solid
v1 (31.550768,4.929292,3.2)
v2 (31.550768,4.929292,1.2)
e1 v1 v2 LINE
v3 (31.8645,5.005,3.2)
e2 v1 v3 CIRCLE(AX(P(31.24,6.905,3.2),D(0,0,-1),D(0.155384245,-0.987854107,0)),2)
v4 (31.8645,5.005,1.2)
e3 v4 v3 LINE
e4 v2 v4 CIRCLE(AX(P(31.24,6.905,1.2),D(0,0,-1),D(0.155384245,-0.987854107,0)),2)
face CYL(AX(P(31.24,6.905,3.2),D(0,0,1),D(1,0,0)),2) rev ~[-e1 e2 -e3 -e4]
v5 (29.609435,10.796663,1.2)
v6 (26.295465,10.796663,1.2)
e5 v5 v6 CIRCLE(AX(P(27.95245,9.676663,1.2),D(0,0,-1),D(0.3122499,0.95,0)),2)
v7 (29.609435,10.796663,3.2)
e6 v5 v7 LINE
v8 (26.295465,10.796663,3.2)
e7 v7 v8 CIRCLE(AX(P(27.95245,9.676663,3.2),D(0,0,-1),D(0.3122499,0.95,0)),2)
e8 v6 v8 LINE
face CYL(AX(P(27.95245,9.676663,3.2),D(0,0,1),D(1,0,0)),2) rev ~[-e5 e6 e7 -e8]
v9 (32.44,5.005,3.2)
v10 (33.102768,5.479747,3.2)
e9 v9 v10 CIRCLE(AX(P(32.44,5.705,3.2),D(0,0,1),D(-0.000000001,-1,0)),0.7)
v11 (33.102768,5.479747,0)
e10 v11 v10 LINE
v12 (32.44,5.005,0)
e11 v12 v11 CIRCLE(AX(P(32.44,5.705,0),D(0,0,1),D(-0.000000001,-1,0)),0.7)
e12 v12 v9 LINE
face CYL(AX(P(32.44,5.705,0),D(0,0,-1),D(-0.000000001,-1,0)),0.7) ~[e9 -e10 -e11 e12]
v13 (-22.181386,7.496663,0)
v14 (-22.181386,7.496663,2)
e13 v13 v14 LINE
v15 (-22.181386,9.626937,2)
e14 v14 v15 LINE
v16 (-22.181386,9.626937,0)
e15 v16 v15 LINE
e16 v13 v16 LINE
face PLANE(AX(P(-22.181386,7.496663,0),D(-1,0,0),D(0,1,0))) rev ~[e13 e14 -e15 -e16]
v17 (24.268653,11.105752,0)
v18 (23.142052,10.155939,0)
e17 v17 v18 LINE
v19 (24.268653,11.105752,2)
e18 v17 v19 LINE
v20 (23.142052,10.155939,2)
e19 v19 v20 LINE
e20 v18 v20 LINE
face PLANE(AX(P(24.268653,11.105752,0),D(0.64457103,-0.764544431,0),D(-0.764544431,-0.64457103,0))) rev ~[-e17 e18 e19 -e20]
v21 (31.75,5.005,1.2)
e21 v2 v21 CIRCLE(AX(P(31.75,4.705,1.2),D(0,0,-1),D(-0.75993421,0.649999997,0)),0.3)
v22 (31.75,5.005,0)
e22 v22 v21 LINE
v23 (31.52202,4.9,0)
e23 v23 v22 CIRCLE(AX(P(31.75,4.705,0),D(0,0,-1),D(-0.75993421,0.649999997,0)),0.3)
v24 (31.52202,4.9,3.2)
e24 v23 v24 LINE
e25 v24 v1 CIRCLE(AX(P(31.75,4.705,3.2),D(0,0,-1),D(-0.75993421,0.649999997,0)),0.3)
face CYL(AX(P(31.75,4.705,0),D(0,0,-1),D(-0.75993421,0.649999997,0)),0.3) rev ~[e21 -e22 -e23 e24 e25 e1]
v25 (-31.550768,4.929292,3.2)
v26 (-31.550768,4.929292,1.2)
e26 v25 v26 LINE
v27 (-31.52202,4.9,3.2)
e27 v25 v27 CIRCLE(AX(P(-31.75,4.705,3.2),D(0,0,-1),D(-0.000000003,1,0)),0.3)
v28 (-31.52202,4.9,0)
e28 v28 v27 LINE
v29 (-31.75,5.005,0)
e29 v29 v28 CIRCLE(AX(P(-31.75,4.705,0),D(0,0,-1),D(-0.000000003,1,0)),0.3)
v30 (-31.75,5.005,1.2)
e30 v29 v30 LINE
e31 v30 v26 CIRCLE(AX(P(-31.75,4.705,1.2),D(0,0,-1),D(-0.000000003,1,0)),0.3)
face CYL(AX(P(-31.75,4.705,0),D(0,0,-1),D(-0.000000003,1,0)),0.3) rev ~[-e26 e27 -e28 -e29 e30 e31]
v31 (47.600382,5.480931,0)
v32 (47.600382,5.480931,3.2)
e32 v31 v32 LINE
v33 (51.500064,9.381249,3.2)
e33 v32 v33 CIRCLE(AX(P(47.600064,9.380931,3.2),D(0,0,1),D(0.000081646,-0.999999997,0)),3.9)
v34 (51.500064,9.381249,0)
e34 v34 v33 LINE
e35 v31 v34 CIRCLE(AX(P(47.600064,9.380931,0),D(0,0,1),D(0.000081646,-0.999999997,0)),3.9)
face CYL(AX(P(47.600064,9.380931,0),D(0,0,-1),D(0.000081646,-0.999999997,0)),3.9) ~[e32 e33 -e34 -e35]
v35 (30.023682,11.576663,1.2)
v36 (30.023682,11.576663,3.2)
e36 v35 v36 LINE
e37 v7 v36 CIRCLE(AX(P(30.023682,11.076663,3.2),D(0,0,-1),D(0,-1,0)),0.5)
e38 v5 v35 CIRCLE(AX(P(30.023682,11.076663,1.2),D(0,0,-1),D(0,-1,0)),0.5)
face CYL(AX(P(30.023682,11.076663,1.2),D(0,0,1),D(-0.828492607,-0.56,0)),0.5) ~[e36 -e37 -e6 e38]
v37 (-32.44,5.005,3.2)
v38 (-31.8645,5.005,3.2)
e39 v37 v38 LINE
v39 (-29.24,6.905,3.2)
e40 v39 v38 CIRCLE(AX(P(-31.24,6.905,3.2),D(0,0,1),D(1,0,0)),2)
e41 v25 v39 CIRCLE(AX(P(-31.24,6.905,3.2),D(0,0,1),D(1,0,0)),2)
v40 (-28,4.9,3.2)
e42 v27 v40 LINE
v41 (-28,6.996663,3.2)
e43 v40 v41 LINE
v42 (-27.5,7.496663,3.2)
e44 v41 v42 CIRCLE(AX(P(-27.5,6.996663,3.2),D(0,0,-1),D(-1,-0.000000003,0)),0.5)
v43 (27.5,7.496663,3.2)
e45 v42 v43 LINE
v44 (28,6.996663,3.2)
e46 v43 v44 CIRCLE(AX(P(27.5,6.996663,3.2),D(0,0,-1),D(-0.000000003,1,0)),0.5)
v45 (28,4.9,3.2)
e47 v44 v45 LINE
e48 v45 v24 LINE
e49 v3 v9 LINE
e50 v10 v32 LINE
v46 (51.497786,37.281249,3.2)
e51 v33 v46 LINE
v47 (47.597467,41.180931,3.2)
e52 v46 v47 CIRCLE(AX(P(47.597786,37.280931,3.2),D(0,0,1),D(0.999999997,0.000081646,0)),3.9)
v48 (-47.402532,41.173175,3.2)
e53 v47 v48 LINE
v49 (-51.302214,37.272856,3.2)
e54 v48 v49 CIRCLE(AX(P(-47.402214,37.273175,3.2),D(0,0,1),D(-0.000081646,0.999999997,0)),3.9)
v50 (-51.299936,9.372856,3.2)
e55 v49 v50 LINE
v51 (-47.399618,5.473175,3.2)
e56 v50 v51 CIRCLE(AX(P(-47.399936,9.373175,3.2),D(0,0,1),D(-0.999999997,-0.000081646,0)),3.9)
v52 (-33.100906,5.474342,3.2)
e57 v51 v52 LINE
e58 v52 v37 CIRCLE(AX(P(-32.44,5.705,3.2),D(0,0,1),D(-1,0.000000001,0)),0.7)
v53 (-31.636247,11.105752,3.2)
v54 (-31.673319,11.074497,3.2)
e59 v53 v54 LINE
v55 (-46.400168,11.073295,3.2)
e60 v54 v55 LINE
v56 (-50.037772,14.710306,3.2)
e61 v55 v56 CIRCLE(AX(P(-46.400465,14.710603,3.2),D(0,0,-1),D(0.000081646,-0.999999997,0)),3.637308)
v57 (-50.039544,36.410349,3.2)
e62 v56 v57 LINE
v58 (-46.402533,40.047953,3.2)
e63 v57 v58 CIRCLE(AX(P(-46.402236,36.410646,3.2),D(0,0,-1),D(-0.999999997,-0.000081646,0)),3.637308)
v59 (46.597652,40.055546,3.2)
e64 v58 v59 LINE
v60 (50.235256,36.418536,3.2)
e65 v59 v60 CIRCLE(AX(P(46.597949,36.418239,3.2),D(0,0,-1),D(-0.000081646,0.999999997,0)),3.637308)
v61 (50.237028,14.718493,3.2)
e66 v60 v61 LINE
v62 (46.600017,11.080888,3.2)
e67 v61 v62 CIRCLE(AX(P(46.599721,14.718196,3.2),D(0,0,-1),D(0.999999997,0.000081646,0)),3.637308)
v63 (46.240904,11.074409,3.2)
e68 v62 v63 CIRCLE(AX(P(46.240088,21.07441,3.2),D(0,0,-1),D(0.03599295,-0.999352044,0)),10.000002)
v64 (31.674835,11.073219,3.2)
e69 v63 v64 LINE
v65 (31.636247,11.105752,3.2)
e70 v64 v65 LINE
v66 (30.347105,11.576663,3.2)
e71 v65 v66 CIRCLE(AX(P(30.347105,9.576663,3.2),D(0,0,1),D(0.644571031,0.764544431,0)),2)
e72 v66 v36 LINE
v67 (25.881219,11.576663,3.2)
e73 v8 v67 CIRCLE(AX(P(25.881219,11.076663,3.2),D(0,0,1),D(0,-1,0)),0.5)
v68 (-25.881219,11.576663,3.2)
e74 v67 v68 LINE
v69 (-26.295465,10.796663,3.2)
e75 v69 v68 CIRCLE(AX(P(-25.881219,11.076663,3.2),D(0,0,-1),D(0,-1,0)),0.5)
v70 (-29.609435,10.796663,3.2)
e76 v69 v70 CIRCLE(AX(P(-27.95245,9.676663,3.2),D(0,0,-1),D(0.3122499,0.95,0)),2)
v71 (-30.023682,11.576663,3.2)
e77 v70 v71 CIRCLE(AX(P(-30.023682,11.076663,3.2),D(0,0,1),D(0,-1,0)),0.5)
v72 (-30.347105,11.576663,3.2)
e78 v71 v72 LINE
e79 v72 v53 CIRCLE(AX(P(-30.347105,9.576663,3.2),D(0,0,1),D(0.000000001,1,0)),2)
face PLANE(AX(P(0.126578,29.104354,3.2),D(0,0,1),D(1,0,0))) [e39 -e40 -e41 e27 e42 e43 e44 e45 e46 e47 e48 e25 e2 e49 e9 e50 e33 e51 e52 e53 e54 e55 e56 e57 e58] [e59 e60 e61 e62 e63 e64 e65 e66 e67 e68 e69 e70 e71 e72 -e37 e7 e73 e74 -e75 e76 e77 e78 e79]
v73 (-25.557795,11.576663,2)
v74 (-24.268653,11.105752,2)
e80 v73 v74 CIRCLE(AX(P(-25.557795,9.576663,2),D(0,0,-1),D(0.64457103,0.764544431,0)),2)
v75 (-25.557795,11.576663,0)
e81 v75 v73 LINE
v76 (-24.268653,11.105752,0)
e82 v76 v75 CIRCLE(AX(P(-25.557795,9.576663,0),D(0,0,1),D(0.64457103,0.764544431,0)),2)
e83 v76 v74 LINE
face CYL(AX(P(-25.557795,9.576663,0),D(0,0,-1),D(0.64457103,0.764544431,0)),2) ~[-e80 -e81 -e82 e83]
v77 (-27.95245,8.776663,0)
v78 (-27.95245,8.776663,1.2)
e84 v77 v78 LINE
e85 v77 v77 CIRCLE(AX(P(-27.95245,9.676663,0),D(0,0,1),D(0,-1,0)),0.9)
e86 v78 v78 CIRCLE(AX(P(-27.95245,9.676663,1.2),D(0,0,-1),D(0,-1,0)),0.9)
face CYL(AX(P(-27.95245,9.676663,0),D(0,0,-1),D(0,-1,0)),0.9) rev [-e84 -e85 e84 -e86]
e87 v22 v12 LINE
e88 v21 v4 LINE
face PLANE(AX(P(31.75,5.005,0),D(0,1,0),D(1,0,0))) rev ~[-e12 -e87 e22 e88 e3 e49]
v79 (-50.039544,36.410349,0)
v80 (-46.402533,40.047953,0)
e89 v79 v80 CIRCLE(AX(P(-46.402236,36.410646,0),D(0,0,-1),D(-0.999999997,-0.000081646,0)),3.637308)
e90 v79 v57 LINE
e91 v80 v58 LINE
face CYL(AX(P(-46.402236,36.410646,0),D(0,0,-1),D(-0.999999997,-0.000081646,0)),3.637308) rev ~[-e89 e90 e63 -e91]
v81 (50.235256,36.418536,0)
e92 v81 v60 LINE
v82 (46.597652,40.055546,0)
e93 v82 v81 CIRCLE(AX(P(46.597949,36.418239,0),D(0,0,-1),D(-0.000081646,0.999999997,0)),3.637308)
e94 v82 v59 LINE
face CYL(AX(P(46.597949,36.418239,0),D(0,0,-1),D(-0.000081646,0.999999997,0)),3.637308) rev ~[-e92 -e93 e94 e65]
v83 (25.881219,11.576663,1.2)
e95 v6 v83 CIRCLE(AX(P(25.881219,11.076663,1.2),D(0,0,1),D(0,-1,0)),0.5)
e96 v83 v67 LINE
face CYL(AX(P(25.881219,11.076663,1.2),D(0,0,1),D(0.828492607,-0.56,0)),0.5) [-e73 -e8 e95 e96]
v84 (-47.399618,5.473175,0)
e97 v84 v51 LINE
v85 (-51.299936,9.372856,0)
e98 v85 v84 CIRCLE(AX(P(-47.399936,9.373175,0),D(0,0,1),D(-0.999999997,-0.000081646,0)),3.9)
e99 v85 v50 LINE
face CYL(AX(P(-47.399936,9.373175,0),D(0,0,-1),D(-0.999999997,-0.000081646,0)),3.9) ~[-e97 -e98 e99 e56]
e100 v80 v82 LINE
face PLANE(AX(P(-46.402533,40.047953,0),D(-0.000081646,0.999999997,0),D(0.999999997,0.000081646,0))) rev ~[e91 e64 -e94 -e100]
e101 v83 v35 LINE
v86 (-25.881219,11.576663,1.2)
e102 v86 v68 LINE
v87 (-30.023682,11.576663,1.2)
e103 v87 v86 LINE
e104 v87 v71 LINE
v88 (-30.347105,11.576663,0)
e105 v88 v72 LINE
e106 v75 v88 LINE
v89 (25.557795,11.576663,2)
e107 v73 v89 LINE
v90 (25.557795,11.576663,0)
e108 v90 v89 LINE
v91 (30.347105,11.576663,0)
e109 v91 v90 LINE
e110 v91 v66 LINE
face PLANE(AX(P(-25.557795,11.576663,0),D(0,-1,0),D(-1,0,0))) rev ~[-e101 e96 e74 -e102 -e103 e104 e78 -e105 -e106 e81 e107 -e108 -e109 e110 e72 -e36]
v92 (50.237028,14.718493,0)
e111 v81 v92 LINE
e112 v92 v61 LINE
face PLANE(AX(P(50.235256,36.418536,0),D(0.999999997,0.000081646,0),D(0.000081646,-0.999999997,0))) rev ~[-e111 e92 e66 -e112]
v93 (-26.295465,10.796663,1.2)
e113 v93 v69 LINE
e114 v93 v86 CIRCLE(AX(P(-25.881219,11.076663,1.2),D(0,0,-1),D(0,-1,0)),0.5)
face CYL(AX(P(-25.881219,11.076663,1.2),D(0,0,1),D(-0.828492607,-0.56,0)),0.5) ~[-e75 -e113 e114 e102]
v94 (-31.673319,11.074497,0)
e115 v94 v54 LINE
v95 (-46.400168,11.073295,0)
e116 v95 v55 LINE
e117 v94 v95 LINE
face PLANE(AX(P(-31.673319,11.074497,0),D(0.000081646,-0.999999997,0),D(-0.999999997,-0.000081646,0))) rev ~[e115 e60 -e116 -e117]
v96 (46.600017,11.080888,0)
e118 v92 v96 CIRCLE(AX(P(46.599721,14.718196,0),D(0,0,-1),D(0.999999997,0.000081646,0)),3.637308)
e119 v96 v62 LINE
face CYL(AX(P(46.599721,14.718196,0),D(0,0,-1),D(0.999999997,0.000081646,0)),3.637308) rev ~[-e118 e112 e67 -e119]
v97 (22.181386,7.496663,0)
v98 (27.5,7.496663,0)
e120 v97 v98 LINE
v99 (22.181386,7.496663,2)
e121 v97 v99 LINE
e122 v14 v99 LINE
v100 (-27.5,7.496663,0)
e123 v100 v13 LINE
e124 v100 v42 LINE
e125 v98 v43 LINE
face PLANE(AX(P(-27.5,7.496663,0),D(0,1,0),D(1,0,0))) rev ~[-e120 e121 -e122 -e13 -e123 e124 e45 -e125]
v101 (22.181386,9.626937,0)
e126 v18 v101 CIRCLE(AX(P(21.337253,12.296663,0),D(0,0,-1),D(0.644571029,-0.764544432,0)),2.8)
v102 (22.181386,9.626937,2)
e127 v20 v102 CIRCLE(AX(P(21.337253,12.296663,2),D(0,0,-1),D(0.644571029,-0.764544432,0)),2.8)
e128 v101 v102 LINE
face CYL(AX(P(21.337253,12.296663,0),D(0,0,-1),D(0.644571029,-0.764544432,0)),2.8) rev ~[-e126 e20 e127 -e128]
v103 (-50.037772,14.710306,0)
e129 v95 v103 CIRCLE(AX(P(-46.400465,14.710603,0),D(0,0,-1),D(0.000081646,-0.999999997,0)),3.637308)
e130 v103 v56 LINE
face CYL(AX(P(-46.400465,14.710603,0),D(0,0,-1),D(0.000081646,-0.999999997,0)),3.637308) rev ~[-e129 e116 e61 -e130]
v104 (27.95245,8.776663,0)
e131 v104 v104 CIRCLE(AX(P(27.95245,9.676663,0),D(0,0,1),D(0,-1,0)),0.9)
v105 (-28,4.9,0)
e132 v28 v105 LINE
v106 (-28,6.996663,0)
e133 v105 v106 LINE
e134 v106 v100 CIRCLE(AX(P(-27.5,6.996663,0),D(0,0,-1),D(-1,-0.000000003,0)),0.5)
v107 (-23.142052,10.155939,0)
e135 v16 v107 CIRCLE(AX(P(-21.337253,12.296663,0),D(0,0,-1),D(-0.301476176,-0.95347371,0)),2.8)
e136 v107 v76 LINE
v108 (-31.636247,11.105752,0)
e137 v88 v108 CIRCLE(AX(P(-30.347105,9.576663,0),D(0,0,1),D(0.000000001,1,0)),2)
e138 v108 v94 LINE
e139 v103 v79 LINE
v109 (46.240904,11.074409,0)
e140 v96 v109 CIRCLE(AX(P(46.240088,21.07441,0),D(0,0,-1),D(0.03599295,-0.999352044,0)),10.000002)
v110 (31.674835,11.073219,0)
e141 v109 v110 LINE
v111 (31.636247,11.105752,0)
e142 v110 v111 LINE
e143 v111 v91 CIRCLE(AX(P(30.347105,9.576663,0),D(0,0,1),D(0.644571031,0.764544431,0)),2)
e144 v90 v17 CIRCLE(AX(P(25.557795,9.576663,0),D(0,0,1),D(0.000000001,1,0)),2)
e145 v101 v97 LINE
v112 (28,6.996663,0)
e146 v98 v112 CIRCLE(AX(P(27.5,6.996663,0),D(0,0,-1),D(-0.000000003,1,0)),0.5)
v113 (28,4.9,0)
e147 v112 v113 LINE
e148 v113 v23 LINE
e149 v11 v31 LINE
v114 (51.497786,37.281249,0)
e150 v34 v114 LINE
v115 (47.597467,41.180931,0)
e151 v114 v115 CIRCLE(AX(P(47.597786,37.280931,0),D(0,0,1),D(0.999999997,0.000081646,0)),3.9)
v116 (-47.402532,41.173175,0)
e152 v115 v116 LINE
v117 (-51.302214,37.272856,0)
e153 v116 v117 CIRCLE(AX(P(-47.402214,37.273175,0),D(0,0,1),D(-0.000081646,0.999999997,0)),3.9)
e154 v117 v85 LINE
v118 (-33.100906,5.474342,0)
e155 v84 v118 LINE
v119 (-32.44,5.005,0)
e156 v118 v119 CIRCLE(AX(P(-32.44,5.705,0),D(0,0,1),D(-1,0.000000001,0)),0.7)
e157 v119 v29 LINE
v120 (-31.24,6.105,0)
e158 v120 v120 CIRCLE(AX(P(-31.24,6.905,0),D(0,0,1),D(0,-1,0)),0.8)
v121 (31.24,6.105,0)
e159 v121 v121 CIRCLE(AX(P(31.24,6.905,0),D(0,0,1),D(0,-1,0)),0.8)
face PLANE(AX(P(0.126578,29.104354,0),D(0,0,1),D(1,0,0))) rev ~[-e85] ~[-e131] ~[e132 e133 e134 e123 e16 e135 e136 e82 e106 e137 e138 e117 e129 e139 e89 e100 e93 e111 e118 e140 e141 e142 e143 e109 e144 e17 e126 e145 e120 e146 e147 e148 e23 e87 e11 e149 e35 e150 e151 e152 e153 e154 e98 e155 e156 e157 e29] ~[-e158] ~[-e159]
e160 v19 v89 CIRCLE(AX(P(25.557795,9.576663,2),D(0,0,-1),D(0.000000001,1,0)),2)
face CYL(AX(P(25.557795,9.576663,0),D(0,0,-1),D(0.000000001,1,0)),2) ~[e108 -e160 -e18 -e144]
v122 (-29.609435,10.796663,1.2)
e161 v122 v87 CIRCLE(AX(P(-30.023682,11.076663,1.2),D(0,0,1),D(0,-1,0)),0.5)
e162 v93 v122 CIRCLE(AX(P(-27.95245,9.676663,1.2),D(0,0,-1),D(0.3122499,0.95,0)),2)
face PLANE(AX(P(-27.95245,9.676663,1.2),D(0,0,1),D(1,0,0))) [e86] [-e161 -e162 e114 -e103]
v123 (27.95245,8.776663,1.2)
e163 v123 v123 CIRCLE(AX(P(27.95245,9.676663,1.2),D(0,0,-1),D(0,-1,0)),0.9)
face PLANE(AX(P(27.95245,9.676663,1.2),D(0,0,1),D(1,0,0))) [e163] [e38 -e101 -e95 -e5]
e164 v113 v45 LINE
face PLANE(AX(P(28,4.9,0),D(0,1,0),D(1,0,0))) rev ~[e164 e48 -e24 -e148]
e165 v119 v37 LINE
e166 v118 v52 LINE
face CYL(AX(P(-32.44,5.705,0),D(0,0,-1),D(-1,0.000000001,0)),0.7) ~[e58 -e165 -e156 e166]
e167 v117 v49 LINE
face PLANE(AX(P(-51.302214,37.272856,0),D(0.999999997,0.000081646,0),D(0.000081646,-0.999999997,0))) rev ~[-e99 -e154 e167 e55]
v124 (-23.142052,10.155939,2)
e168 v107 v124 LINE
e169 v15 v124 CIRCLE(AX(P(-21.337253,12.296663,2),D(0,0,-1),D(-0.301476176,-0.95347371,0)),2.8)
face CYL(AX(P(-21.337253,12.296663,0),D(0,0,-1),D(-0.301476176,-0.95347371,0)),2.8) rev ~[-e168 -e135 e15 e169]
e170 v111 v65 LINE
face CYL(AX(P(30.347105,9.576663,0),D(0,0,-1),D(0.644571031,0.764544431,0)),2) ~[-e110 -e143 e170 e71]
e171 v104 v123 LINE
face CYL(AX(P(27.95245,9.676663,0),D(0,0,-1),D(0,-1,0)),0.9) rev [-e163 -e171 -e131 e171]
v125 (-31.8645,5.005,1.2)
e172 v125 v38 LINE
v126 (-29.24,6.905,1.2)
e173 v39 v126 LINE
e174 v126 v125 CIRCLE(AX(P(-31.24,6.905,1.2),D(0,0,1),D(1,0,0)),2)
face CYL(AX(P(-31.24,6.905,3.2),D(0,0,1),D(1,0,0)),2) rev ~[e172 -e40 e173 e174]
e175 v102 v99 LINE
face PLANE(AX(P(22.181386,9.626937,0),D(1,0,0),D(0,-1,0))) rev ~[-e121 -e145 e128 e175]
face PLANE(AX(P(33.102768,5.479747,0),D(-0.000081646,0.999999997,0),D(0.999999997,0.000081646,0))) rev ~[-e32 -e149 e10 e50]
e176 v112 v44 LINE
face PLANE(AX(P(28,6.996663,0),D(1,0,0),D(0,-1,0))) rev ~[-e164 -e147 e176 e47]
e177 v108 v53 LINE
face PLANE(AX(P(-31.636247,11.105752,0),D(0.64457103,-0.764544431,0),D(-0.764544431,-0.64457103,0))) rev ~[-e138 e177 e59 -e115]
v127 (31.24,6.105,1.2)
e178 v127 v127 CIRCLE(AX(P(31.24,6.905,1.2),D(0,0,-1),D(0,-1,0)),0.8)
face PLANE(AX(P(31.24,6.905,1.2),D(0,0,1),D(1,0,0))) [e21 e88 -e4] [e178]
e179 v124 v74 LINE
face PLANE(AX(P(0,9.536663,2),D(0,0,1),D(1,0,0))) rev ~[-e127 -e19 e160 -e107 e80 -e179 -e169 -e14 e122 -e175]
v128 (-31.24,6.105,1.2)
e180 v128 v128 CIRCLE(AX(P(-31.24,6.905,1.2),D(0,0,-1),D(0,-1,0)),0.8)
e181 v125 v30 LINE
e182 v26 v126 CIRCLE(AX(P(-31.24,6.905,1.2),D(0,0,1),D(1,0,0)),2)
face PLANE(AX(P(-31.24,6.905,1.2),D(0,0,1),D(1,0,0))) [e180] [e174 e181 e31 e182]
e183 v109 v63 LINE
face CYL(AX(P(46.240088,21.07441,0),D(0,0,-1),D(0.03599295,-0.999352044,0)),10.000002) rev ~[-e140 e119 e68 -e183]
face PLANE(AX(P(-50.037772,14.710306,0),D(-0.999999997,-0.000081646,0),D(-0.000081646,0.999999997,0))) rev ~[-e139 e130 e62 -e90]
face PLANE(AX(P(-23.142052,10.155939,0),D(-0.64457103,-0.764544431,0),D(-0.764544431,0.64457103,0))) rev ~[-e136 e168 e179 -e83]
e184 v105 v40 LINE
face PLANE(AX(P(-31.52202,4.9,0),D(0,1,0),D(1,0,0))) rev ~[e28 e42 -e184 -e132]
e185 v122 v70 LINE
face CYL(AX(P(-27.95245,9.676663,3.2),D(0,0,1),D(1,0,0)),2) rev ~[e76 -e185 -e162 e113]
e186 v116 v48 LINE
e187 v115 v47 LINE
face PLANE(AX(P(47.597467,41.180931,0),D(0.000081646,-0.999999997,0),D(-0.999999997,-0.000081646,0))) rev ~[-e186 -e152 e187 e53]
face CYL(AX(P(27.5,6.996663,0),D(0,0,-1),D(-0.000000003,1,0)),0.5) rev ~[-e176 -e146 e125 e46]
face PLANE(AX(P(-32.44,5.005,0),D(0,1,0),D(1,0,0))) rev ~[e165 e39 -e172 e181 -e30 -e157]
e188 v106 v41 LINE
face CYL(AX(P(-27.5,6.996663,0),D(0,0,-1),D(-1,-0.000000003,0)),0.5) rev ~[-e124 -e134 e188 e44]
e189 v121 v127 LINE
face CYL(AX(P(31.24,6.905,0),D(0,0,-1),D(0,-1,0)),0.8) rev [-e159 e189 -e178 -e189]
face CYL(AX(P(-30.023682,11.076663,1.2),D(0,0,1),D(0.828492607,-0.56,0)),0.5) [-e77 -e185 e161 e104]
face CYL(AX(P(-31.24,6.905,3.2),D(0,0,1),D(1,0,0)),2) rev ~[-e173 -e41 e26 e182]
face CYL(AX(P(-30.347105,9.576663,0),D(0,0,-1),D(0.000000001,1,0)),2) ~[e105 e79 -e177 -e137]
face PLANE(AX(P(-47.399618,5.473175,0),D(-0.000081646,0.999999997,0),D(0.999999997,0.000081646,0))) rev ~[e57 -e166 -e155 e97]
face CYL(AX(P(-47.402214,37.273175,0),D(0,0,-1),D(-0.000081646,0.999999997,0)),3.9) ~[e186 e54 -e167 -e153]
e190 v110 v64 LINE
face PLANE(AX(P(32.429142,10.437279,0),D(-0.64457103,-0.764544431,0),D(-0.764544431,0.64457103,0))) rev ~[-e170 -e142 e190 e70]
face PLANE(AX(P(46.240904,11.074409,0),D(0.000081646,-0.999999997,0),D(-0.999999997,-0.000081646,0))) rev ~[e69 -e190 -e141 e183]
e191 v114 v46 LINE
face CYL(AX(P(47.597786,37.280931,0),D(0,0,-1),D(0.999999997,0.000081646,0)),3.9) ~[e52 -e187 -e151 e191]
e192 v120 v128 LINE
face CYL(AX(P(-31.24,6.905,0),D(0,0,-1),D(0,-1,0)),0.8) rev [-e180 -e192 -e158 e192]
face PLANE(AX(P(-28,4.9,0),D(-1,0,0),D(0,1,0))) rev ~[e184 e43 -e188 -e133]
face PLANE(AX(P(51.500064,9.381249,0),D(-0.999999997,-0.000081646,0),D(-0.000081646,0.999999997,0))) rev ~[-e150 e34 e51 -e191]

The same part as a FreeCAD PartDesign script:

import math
import FreeCAD as App
import Part
import Sketcher


def edges_at(feature, points):
    """Names of the edges that pass closest to the given points."""
    edges = feature.Shape.Edges
    near = lambda p: min(range(len(edges)), key=lambda i: edges[i].distToShape(Part.Vertex(*p))[0])
    return sorted({f"Edge{near(p) + 1}" for p in points})


def add_polygon(sketch, points):
    """Adds a closed chain of lines whose ends are joined by coincident constraints."""
    first, n = sketch.GeometryCount, len(points)
    for a, b in zip(points, points[1:] + points[:1]):
        sketch.addGeometry(Part.LineSegment(App.Vector(*a, 0), App.Vector(*b, 0)), False)
    for i in range(n):
        sketch.addConstraint(Sketcher.Constraint("Coincident", first + i, 2, first + (i + 1) % n, 1))

doc = App.newDocument("Part")
params = doc.addObject("Spreadsheet::Sheet", "Params")
for row, (alias, value) in enumerate([
    ("sketch1_radius", "2 mm"),
    ("sketch1_diameter", "1.6 mm"),
    ("sketch1_diameter2", "1.8 mm"),
    ("sketch1_radius2", "0.3 mm"),
    ("sketch1_radius3", "0.5 mm"),
    ("pad1_length", "3.2 mm"),
    ("sketch2_radius", "2 mm"),
    ("sketch2_diameter", "1.6 mm"),
    ("sketch2_diameter2", "1.8 mm"),
    ("sketch2_radius2", "0.3 mm"),
    ("sketch2_radius3", "0.7 mm"),
    ("pad2_length", "3.2 mm"),
    ("sketch3_height", "4.08 mm"),
    ("pad3_length", "1.2 mm"),
    ("sketch4_radius", "2 mm"),
    ("sketch4_radius2", "2 mm"),
    ("sketch4_radius3", "10.000002 mm"),
    ("sketch4_radius4", "0.7 mm"),
    ("sketch4_radius5", "3.9 mm"),
    ("pad4_length", "3.2 mm"),
    ("sketch5_diameter", "4 mm"),
    ("pocket1_length", "2 mm"),
    ("fillet_radius", "0.5 mm"),
], start=1):
    params.set(f"A{row}", alias)
    params.set(f"B{row}", "=" + value)
    params.setAlias(f"B{row}", alias)

body = doc.addObject("PartDesign::Body", "Body")

# Sketch on XY plane
sketch1 = doc.addObject("Sketcher::SketchObject", "Sketch")
body.addObject(sketch1)
sketch1.AttachmentSupport = (doc.XY_Plane, [""])
sketch1.MapMode = "FlatFace"
sketch1.addGeometry(Part.LineSegment(App.Vector(-32.44, 5, 0), App.Vector(-31.75, 5, 0)), False)
sketch1.addGeometry(Part.ArcOfCircle(Part.Circle(App.Vector(-31.75, 4.71, 0), App.Vector(0, 0, 1), 0.3), math.radians(41), math.radians(90)), False)
sketch1.addGeometry(Part.LineSegment(App.Vector(-31.52, 4.9, 0), App.Vector(-28, 4.9, 0)), False)
sketch1.addGeometry(Part.LineSegment(App.Vector(-28, 4.9, 0), App.Vector(-28, 7, 0)), False)
sketch1.addGeometry(Part.ArcOfCircle(Part.Circle(App.Vector(-27.5, 7, 0), App.Vector(0, 0, 1), 0.5), math.radians(90), math.radians(180)), False)
sketch1.addGeometry(Part.LineSegment(App.Vector(-27.5, 7.5, 0), App.Vector(-22.18, 7.5, 0)), False)
sketch1.addGeometry(Part.LineSegment(App.Vector(-22.18, 7.5, 0), App.Vector(-22.18, 9.63, 0)), False)
sketch1.addGeometry(Part.ArcOfCircle(Part.Circle(App.Vector(-21.34, 12.3, 0), App.Vector(0, 0, 1), 2.8), math.radians(-130), math.radians(-108)), False)
sketch1.addGeometry(Part.LineSegment(App.Vector(-23.14, 10.16, 0), App.Vector(-24.27, 11.11, 0)), False)
sketch1.addGeometry(Part.ArcOfCircle(Part.Circle(App.Vector(-25.56, 9.58, 0), App.Vector(0, 0, 1), 2), math.radians(50), math.radians(90)), False)
sketch1.addGeometry(Part.LineSegment(App.Vector(-25.56, 11.58, 0), App.Vector(-30.35, 11.58, 0)), False)
sketch1.addGeometry(Part.ArcOfCircle(Part.Circle(App.Vector(-30.35, 9.58, 0), App.Vector(0, 0, 1), 2), math.radians(90), math.radians(130)), False)
sketch1.addGeometry(Part.LineSegment(App.Vector(-31.64, 11.11, 0), App.Vector(-32.43, 10.44, 0)), False)
sketch1.addGeometry(Part.ArcOfCircle(Part.Circle(App.Vector(-31.14, 8.91, 0), App.Vector(0, 0, 1), 2), math.radians(130), math.radians(180)), False)
sketch1.addGeometry(Part.LineSegment(App.Vector(-33.14, 8.91, 0), App.Vector(-33.14, 5.71, 0)), False)
sketch1.addGeometry(Part.ArcOfCircle(Part.Circle(App.Vector(-32.44, 5.7, 0), App.Vector(0, 0, 1), 0.7), math.radians(180), math.radians(270)), False)
sketch1.addGeometry(Part.Circle(App.Vector(-31.24, 6.91, 0), App.Vector(0, 0, 1), 0.8), False)
sketch1.addGeometry(Part.Circle(App.Vector(-27.95, 9.68, 0), App.Vector(0, 0, 1), 0.9), False)
sketch1.addConstraint(Sketcher.Constraint("Tangent", 0, 2, 1, 2))
sketch1.addConstraint(Sketcher.Constraint("Coincident", 1, 1, 2, 1))
sketch1.addConstraint(Sketcher.Constraint("Coincident", 2, 2, 3, 1))
sketch1.addConstraint(Sketcher.Constraint("Tangent", 3, 2, 4, 2))
sketch1.addConstraint(Sketcher.Constraint("Tangent", 4, 1, 5, 1))
sketch1.addConstraint(Sketcher.Constraint("Coincident", 5, 2, 6, 1))
sketch1.addConstraint(Sketcher.Constraint("Coincident", 6, 2, 7, 2))
sketch1.addConstraint(Sketcher.Constraint("Tangent", 7, 1, 8, 1))
sketch1.addConstraint(Sketcher.Constraint("Tangent", 8, 2, 9, 1))
sketch1.addConstraint(Sketcher.Constraint("Tangent", 9, 2, 10, 1))
sketch1.addConstraint(Sketcher.Constraint("Tangent", 10, 2, 11, 1))
sketch1.addConstraint(Sketcher.Constraint("Tangent", 11, 2, 12, 1))
sketch1.addConstraint(Sketcher.Constraint("Tangent", 12, 2, 13, 1))
sketch1.addConstraint(Sketcher.Constraint("Tangent", 13, 2, 14, 1))
sketch1.addConstraint(Sketcher.Constraint("Tangent", 14, 2, 15, 1))
sketch1.addConstraint(Sketcher.Constraint("Tangent", 15, 2, 0, 1))
sketch1.addConstraint(Sketcher.Constraint("Horizontal", 0))
sketch1.addConstraint(Sketcher.Constraint("Horizontal", 2))
sketch1.addConstraint(Sketcher.Constraint("Vertical", 3))
sketch1.addConstraint(Sketcher.Constraint("Horizontal", 5))
sketch1.addConstraint(Sketcher.Constraint("Vertical", 6))
sketch1.addConstraint(Sketcher.Constraint("Horizontal", 10))
sketch1.addConstraint(Sketcher.Constraint("Vertical", 14))
sketch1.addConstraint(Sketcher.Constraint("Equal", 9, 11))
sketch1.addConstraint(Sketcher.Constraint("Equal", 11, 13))
sketch1.addConstraint(Sketcher.Constraint("Horizontal", 8, 2, 11, 2))
sketch1.addConstraint(Sketcher.Constraint("Radius", 9, 2.0))
sketch1.addConstraint(Sketcher.Constraint("Diameter", 16, 1.6))
sketch1.addConstraint(Sketcher.Constraint("Diameter", 17, 1.8))
sketch1.addConstraint(Sketcher.Constraint("Radius", 1, 0.3))
sketch1.addConstraint(Sketcher.Constraint("Radius", 4, 0.5))
sketch1.addConstraint(Sketcher.Constraint("Radius", 7, 2.8))
sketch1.addConstraint(Sketcher.Constraint("Radius", 15, 0.7))
sketch1.addConstraint(Sketcher.Constraint("DistanceX", 2, 2, -1, 1, 28.0))
sketch1.addConstraint(Sketcher.Constraint("DistanceX", 0, 1, 0, 2, 0.69))
sketch1.addConstraint(Sketcher.Constraint("DistanceY", -1, 1, 1, 1, 4.9))
sketch1.addConstraint(Sketcher.Constraint("DistanceY", 4, 3, 7, 3, 5.3))
sketch1.addConstraint(Sketcher.Constraint("DistanceX", 15, 3, 16, 3, 1.2))
sketch1.addConstraint(Sketcher.Constraint("DistanceY", 15, 3, 16, 3, 1.2))
sketch1.addConstraint(Sketcher.Constraint("DistanceY", 9, 3, 17, 3, 0.1))
sketch1.addConstraint(Sketcher.Constraint("DistanceX", 1, 3, -1, 1, 31.75))
sketch1.addConstraint(Sketcher.Constraint("DistanceY", 4, 3, 9, 3, 2.58))
sketch1.addConstraint(Sketcher.Constraint("DistanceY", -1, 1, 1, 3, 4.705))
sketch1.addConstraint(Sketcher.Constraint("DistanceY", 6, 2, 7, 1, 0.529002))
sketch1.addConstraint(Sketcher.Constraint("DistanceX", 10, 2, 10, 1, 4.78931))
sketch1.addConstraint(Sketcher.Constraint("DistanceY", 14, 2, 14, 1, 3.20319))
sketch1.addConstraint(Sketcher.Constraint("DistanceX", 7, 1, 7, 3, 1.804799))
sketch1.addConstraint(Sketcher.Constraint("DistanceX", 17, 3, 7, 1, 4.810398))
sketch1.addConstraint(Sketcher.Constraint("Distance", 12, 1.037082))
sketch1.setExpression("Constraints[26]", "Params.sketch1_radius")
sketch1.setExpression("Constraints[27]", "Params.sketch1_diameter")
sketch1.setExpression("Constraints[28]", "Params.sketch1_diameter2")
sketch1.setExpression("Constraints[29]", "Params.sketch1_radius2")
sketch1.setExpression("Constraints[30]", "Params.sketch1_radius3")
pad1 = doc.addObject("PartDesign::Pad", "Pad")
body.addObject(pad1)
pad1.Profile = sketch1
pad1.setExpression("Length", "Params.pad1_length")
body2 = doc.addObject("PartDesign::Body", "Body001")

# Sketch on XY plane
sketch2 = doc.addObject("Sketcher::SketchObject", "Sketch001")
body2.addObject(sketch2)
sketch2.AttachmentSupport = (doc.getObject("XY_Plane001"), [""])
sketch2.MapMode = "FlatFace"
sketch2.addGeometry(Part.LineSegment(App.Vector(28, 7, 0), App.Vector(28, 4.9, 0)), False)
sketch2.addGeometry(Part.LineSegment(App.Vector(28, 4.9, 0), App.Vector(31.52, 4.9, 0)), False)
sketch2.addGeometry(Part.ArcOfCircle(Part.Circle(App.Vector(31.75, 4.71, 0), App.Vector(0, 0, 1), 0.3), math.radians(90), math.radians(139)), False)
sketch2.addGeometry(Part.LineSegment(App.Vector(31.75, 5, 0), App.Vector(32.44, 5, 0)), False)
sketch2.addGeometry(Part.ArcOfCircle(Part.Circle(App.Vector(32.44, 5.7, 0), App.Vector(0, 0, 1), 0.7), math.radians(-90), math.radians(0)), False)
sketch2.addGeometry(Part.LineSegment(App.Vector(33.14, 5.71, 0), App.Vector(33.14, 8.91, 0)), False)
sketch2.addGeometry(Part.ArcOfCircle(Part.Circle(App.Vector(31.14, 8.91, 0), App.Vector(0, 0, 1), 2), math.radians(0), math.radians(50)), False)
sketch2.addGeometry(Part.LineSegment(App.Vector(32.43, 10.44, 0), App.Vector(31.64, 11.11, 0)), False)
sketch2.addGeometry(Part.ArcOfCircle(Part.Circle(App.Vector(30.35, 9.58, 0), App.Vector(0, 0, 1), 2), math.radians(50), math.radians(90)), False)
sketch2.addGeometry(Part.LineSegment(App.Vector(30.35, 11.58, 0), App.Vector(25.56, 11.58, 0)), False)
sketch2.addGeometry(Part.ArcOfCircle(Part.Circle(App.Vector(25.56, 9.58, 0), App.Vector(0, 0, 1), 2), math.radians(90), math.radians(130)), False)
sketch2.addGeometry(Part.LineSegment(App.Vector(24.27, 11.11, 0), App.Vector(23.14, 10.16, 0)), False)
sketch2.addGeometry(Part.ArcOfCircle(Part.Circle(App.Vector(21.34, 12.3, 0), App.Vector(0, 0, 1), 2.8), math.radians(-72), math.radians(-50)), False)
sketch2.addGeometry(Part.LineSegment(App.Vector(22.18, 9.63, 0), App.Vector(22.18, 7.5, 0)), False)
sketch2.addGeometry(Part.LineSegment(App.Vector(22.18, 7.5, 0), App.Vector(27.5, 7.5, 0)), False)
sketch2.addGeometry(Part.ArcOfCircle(Part.Circle(App.Vector(27.5, 7, 0), App.Vector(0, 0, 1), 0.5), math.radians(0), math.radians(90)), False)
sketch2.addGeometry(Part.Circle(App.Vector(31.24, 6.91, 0), App.Vector(0, 0, 1), 0.8), False)
sketch2.addGeometry(Part.Circle(App.Vector(27.95, 9.68, 0), App.Vector(0, 0, 1), 0.9), False)
sketch2.addConstraint(Sketcher.Constraint("Coincident", 0, 2, 1, 1))
sketch2.addConstraint(Sketcher.Constraint("Coincident", 1, 2, 2, 2))
sketch2.addConstraint(Sketcher.Constraint("Tangent", 2, 1, 3, 1))
sketch2.addConstraint(Sketcher.Constraint("Tangent", 3, 2, 4, 1))
sketch2.addConstraint(Sketcher.Constraint("Tangent", 4, 2, 5, 1))
sketch2.addConstraint(Sketcher.Constraint("Tangent", 5, 2, 6, 1))
sketch2.addConstraint(Sketcher.Constraint("Tangent", 6, 2, 7, 1))
sketch2.addConstraint(Sketcher.Constraint("Tangent", 7, 2, 8, 1))
sketch2.addConstraint(Sketcher.Constraint("Tangent", 8, 2, 9, 1))
sketch2.addConstraint(Sketcher.Constraint("Tangent", 9, 2, 10, 1))
sketch2.addConstraint(Sketcher.Constraint("Tangent", 10, 2, 11, 1))
sketch2.addConstraint(Sketcher.Constraint("Tangent", 11, 2, 12, 2))
sketch2.addConstraint(Sketcher.Constraint("Coincident", 12, 1, 13, 1))
sketch2.addConstraint(Sketcher.Constraint("Coincident", 13, 2, 14, 1))
sketch2.addConstraint(Sketcher.Constraint("Tangent", 14, 2, 15, 2))
sketch2.addConstraint(Sketcher.Constraint("Tangent", 15, 1, 0, 1))
sketch2.addConstraint(Sketcher.Constraint("Vertical", 0))
sketch2.addConstraint(Sketcher.Constraint("Horizontal", 1))
sketch2.addConstraint(Sketcher.Constraint("Horizontal", 3))
sketch2.addConstraint(Sketcher.Constraint("Vertical", 5))
sketch2.addConstraint(Sketcher.Constraint("Horizontal", 9))
sketch2.addConstraint(Sketcher.Constraint("Vertical", 13))
sketch2.addConstraint(Sketcher.Constraint("Horizontal", 14))
sketch2.addConstraint(Sketcher.Constraint("Equal", 6, 8))
sketch2.addConstraint(Sketcher.Constraint("Equal", 8, 10))
sketch2.addConstraint(Sketcher.Constraint("Horizontal", 7, 2, 10, 2))
sketch2.addConstraint(Sketcher.Constraint("Radius", 6, 2.0))
sketch2.addConstraint(Sketcher.Constraint("Diameter", 16, 1.6))
sketch2.addConstraint(Sketcher.Constraint("Diameter", 17, 1.8))
sketch2.addConstraint(Sketcher.Constraint("Radius", 2, 0.3))
sketch2.addConstraint(Sketcher.Constraint("Radius", 4, 0.7))
sketch2.addConstraint(Sketcher.Constraint("Radius", 12, 2.8))
sketch2.addConstraint(Sketcher.Constraint("Radius", 15, 0.5))
sketch2.addConstraint(Sketcher.Constraint("DistanceX", -1, 1, 0, 2, 28.0))
sketch2.addConstraint(Sketcher.Constraint("DistanceX", 3, 1, 3, 2, 0.69))
sketch2.addConstraint(Sketcher.Constraint("DistanceY", -1, 1, 0, 2, 4.9))
sketch2.addConstraint(Sketcher.Constraint("DistanceX", 16, 3, 4, 3, 1.2))
sketch2.addConstraint(Sketcher.Constraint("DistanceY", 4, 3, 16, 3, 1.2))
sketch2.addConstraint(Sketcher.Constraint("DistanceY", 10, 3, 17, 3, 0.1))
sketch2.addConstraint(Sketcher.Constraint("DistanceY", 13, 2, 12, 3, 4.8))
sketch2.addConstraint(Sketcher.Constraint("DistanceX", -1, 1, 2, 3, 31.75))
sketch2.addConstraint(Sketcher.Constraint("DistanceY", 10, 3, 12, 3, 2.72))
sketch2.addConstraint(Sketcher.Constraint("DistanceY", -1, 1, 2, 3, 4.705))
sketch2.addConstraint(Sketcher.Constraint("DistanceY", 12, 1, 11, 2, 0.529002))
sketch2.addConstraint(Sketcher.Constraint("DistanceX", 9, 2, 9, 1, 4.78931))
sketch2.addConstraint(Sketcher.Constraint("DistanceY", 5, 1, 5, 2, 3.20319))
sketch2.addConstraint(Sketcher.Constraint("DistanceX", 12, 3, 10, 2, 2.9314))
sketch2.addConstraint(Sketcher.Constraint("DistanceX", 11, 2, 17, 3, 4.810398))
sketch2.addConstraint(Sketcher.Constraint("Distance", 7, 1.037082))
sketch2.setExpression("Constraints[26]", "Params.sketch2_radius")
sketch2.setExpression("Constraints[27]", "Params.sketch2_diameter")
sketch2.setExpression("Constraints[28]", "Params.sketch2_diameter2")
sketch2.setExpression("Constraints[29]", "Params.sketch2_radius2")
sketch2.setExpression("Constraints[30]", "Params.sketch2_radius3")
pad2 = doc.addObject("PartDesign::Pad", "Pad001")
body2.addObject(pad2)
pad2.Profile = sketch2
pad2.setExpression("Length", "Params.pad2_length")
body.AllowCompound = True
doc.recompute()

boolean = doc.addObject("PartDesign::Boolean", "Boolean")
body.addObject(boolean)
boolean.Type = "Fuse"
boolean.addObjects([body2])

# Sketch on XY plane
sketch3 = doc.addObject("Sketcher::SketchObject", "Sketch002")
body.addObject(sketch3)
sketch3.AttachmentSupport = (doc.XY_Plane, [""])
sketch3.MapMode = "FlatFace"
sketch3.AttachmentOffset = App.Placement(App.Vector(0, 0, 3.2), App.Rotation())
add_polygon(sketch3, [(-25.6, 11.6), (-25.6, 7.5), (25.6, 7.5), (25.6, 11.6)])  # lines 0-3
sketch3.addConstraint(Sketcher.Constraint("Vertical", 0))
sketch3.addConstraint(Sketcher.Constraint("Horizontal", 1))
sketch3.addConstraint(Sketcher.Constraint("Vertical", 2))
sketch3.addConstraint(Sketcher.Constraint("Horizontal", 3))
sketch3.addConstraint(Sketcher.Constraint("DistanceY", 0, 2, 0, 1, 4.08))
sketch3.addConstraint(Sketcher.Constraint("DistanceX", 1, 1, 1, 2, 51.11559))
sketch3.addConstraint(Sketcher.Constraint("DistanceX", 0, 2, -1, 1, 25.557795))
sketch3.addConstraint(Sketcher.Constraint("DistanceY", -1, 1, 0, 2, 7.496663))
sketch3.setExpression("Constraints[8]", "Params.sketch3_height")
pad3 = doc.addObject("PartDesign::Pad", "Pad002")
body.addObject(pad3)
pad3.Profile = sketch3
pad3.setExpression("Length", "Params.pad3_length")
pad3.Reversed = True

# Sketch on XY plane
sketch4 = doc.addObject("Sketcher::SketchObject", "Sketch003")
body.addObject(sketch4)
sketch4.AttachmentSupport = (doc.XY_Plane, [""])
sketch4.MapMode = "FlatFace"
sketch4.addGeometry(Part.LineSegment(App.Vector(46.240904, 11.074409, 0), App.Vector(31.674835, 11.073219, 0)), False)
sketch4.addGeometry(Part.LineSegment(App.Vector(31.674835, 11.073219, 0), App.Vector(32.429142, 10.437279, 0)), False)
sketch4.addGeometry(Part.ArcOfCircle(Part.Circle(App.Vector(31.14, 8.90819, 0), App.Vector(0, 0, 1), 2), math.radians(0), math.radians(49.86648)), False)
sketch4.addGeometry(Part.LineSegment(App.Vector(33.14, 8.90819, 0), App.Vector(33.14, 5.705, 0)), False)
sketch4.addGeometry(Part.ArcOfCircle(Part.Circle(App.Vector(32.44, 5.705, 0), App.Vector(0, 0, 1), 0.7), math.radians(-18.771176), math.radians(0)), False)
sketch4.addGeometry(Part.LineSegment(App.Vector(33.102768, 5.479747, 0), App.Vector(47.600382, 5.480931, 0)), False)
sketch4.addGeometry(Part.ArcOfCircle(Part.Circle(App.Vector(47.600064, 9.380931, 0), App.Vector(0, 0, 1), 3.9), math.radians(-89.995322), math.radians(0.004678)), False)
sketch4.addGeometry(Part.LineSegment(App.Vector(51.500064, 9.381249, 0), App.Vector(51.497786, 37.281249, 0)), False)
sketch4.addGeometry(Part.ArcOfCircle(Part.Circle(App.Vector(47.597786, 37.280931, 0), App.Vector(0, 0, 1), 3.9), math.radians(0.004678), math.radians(90.004678)), False)
sketch4.addGeometry(Part.LineSegment(App.Vector(47.597467, 41.180931, 0), App.Vector(-47.402532, 41.173175, 0)), False)
sketch4.addGeometry(Part.ArcOfCircle(Part.Circle(App.Vector(-47.402214, 37.273175, 0), App.Vector(0, 0, 1), 3.9), math.radians(90.004678), math.radians(180.004678)), False)
sketch4.addGeometry(Part.LineSegment(App.Vector(-51.302214, 37.272856, 0), App.Vector(-51.299936, 9.372856, 0)), False)
sketch4.addGeometry(Part.ArcOfCircle(Part.Circle(App.Vector(-47.399936, 9.373175, 0), App.Vector(0, 0, 1), 3.9), math.radians(-179.995322), math.radians(-89.995322)), False)
sketch4.addGeometry(Part.LineSegment(App.Vector(-47.399618, 5.473175, 0), App.Vector(-33.100906, 5.474342, 0)), False)
sketch4.addGeometry(Part.ArcOfCircle(Part.Circle(App.Vector(-32.44, 5.705, 0), App.Vector(0, 0, 1), 0.7), math.radians(-180), math.radians(-160.760889)), False)
sketch4.addGeometry(Part.LineSegment(App.Vector(-33.14, 5.705, 0), App.Vector(-33.14, 8.90819, 0)), False)
sketch4.addGeometry(Part.ArcOfCircle(Part.Circle(App.Vector(-31.14, 8.90819, 0), App.Vector(0, 0, 1), 2), math.radians(130.13352), math.radians(180)), False)
sketch4.addGeometry(Part.LineSegment(App.Vector(-32.429142, 10.437279, 0), App.Vector(-31.673319, 11.074497, 0)), False)
sketch4.addGeometry(Part.LineSegment(App.Vector(-31.673319, 11.074497, 0), App.Vector(-46.400168, 11.073295, 0)), False)
sketch4.addGeometry(Part.ArcOfCircle(Part.Circle(App.Vector(-46.400465, 14.710603, 0), App.Vector(0, 0, 1), 3.637308), math.radians(-179.995322), math.radians(-89.995322)), False)
sketch4.addGeometry(Part.LineSegment(App.Vector(-50.037772, 14.710306, 0), App.Vector(-50.039544, 36.410349, 0)), False)
sketch4.addGeometry(Part.ArcOfCircle(Part.Circle(App.Vector(-46.402236, 36.410646, 0), App.Vector(0, 0, 1), 3.637308), math.radians(90.004678), math.radians(180.004678)), False)
sketch4.addGeometry(Part.LineSegment(App.Vector(-46.402533, 40.047953, 0), App.Vector(46.597652, 40.055546, 0)), False)
sketch4.addGeometry(Part.ArcOfCircle(Part.Circle(App.Vector(46.597949, 36.418239, 0), App.Vector(0, 0, 1), 3.637308), math.radians(0.004678), math.radians(90.004678)), False)
sketch4.addGeometry(Part.LineSegment(App.Vector(50.235256, 36.418536, 0), App.Vector(50.237028, 14.718493, 0)), False)
sketch4.addGeometry(Part.ArcOfCircle(Part.Circle(App.Vector(46.599721, 14.718196, 0), App.Vector(0, 0, 1), 3.637308), math.radians(-89.995322), math.radians(0.004678)), False)
sketch4.addGeometry(Part.ArcOfCircle(Part.Circle(App.Vector(46.240088, 21.07441, 0), App.Vector(0, 0, 1), 10.000002), math.radians(-89.995322), math.radians(-87.93731)), False)
sketch4.addConstraint(Sketcher.Constraint("Coincident", 0, 2, 1, 1))
sketch4.addConstraint(Sketcher.Constraint("Coincident", 1, 2, 2, 2))
sketch4.addConstraint(Sketcher.Constraint("Coincident", 2, 1, 3, 1))
sketch4.addConstraint(Sketcher.Constraint("Coincident", 3, 2, 4, 2))
sketch4.addConstraint(Sketcher.Constraint("Coincident", 4, 1, 5, 1))
sketch4.addConstraint(Sketcher.Constraint("Coincident", 5, 2, 6, 1))
sketch4.addConstraint(Sketcher.Constraint("Coincident", 6, 2, 7, 1))
sketch4.addConstraint(Sketcher.Constraint("Coincident", 7, 2, 8, 1))
sketch4.addConstraint(Sketcher.Constraint("Coincident", 8, 2, 9, 1))
sketch4.addConstraint(Sketcher.Constraint("Coincident", 9, 2, 10, 1))
sketch4.addConstraint(Sketcher.Constraint("Coincident", 10, 2, 11, 1))
sketch4.addConstraint(Sketcher.Constraint("Coincident", 11, 2, 12, 1))
sketch4.addConstraint(Sketcher.Constraint("Coincident", 12, 2, 13, 1))
sketch4.addConstraint(Sketcher.Constraint("Coincident", 13, 2, 14, 2))
sketch4.addConstraint(Sketcher.Constraint("Coincident", 14, 1, 15, 1))
sketch4.addConstraint(Sketcher.Constraint("Coincident", 15, 2, 16, 2))
sketch4.addConstraint(Sketcher.Constraint("Coincident", 16, 1, 17, 1))
sketch4.addConstraint(Sketcher.Constraint("Coincident", 17, 2, 18, 1))
sketch4.addConstraint(Sketcher.Constraint("Coincident", 18, 2, 19, 2))
sketch4.addConstraint(Sketcher.Constraint("Coincident", 19, 1, 20, 1))
sketch4.addConstraint(Sketcher.Constraint("Coincident", 20, 2, 21, 2))
sketch4.addConstraint(Sketcher.Constraint("Coincident", 21, 1, 22, 1))
sketch4.addConstraint(Sketcher.Constraint("Coincident", 22, 2, 23, 2))
sketch4.addConstraint(Sketcher.Constraint("Coincident", 23, 1, 24, 1))
sketch4.addConstraint(Sketcher.Constraint("Coincident", 24, 2, 25, 2))
sketch4.addConstraint(Sketcher.Constraint("Coincident", 25, 1, 26, 2))
sketch4.addConstraint(Sketcher.Constraint("Coincident", 26, 1, 0, 1))
sketch4.addConstraint(Sketcher.Constraint("Vertical", 3))
sketch4.addConstraint(Sketcher.Constraint("Vertical", 15))
sketch4.addConstraint(Sketcher.Constraint("Radius", 2, 2.0))
sketch4.addConstraint(Sketcher.Constraint("Radius", 16, 2.0))
sketch4.addConstraint(Sketcher.Constraint("Radius", 26, 10.000002))
sketch4.addConstraint(Sketcher.Constraint("Radius", 4, 0.7))
sketch4.addConstraint(Sketcher.Constraint("Radius", 6, 3.9))
sketch4.addConstraint(Sketcher.Constraint("Radius", 8, 3.9))
sketch4.addConstraint(Sketcher.Constraint("Radius", 10, 3.9))
sketch4.addConstraint(Sketcher.Constraint("Radius", 12, 3.9))
sketch4.addConstraint(Sketcher.Constraint("Radius", 14, 0.7))
sketch4.addConstraint(Sketcher.Constraint("Distance", 9, 95.0))
sketch4.addConstraint(Sketcher.Constraint("DistanceX", 10, 3, 8, 3, 95.0))
sketch4.addConstraint(Sketcher.Constraint("DistanceX", 12, 3, 6, 3, 95.0))
sketch4.addConstraint(Sketcher.Constraint("DistanceX", 9, 2, 21, 1, 0.999999))
sketch4.addConstraint(Sketcher.Constraint("Distance", 7, 27.9))
sketch4.addConstraint(Sketcher.Constraint("Distance", 11, 27.9))
sketch4.addConstraint(Sketcher.Constraint("DistanceY", 6, 3, 8, 3, 27.9))
sketch4.addConstraint(Sketcher.Constraint("DistanceY", 12, 3, 10, 3, 27.9))
sketch4.addConstraint(Sketcher.Constraint("DistanceX", -1, 1, 2, 3, 31.14))
sketch4.addConstraint(Sketcher.Constraint("DistanceX", 14, 3, -1, 1, 32.44))
sketch4.addConstraint(Sketcher.Constraint("DistanceY", -1, 1, 4, 3, 5.705))
sketch4.addConstraint(Sketcher.Constraint("DistanceY", -1, 1, 14, 3, 5.705))
sketch4.addConstraint(Sketcher.Constraint("DistanceY", -1, 1, 3, 2, 5.705))
sketch4.addConstraint(Sketcher.Constraint("DistanceY", -1, 1, 14, 1, 5.705))
sketch4.addConstraint(Sketcher.Constraint("Radius", 19, 3.637308))
sketch4.addConstraint(Sketcher.Constraint("Radius", 21, 3.637308))
sketch4.addConstraint(Sketcher.Constraint("Radius", 23, 3.637308))
sketch4.addConstraint(Sketcher.Constraint("Radius", 25, 3.637308))
sketch4.addConstraint(Sketcher.Constraint("DistanceY", 3, 2, 3, 1, 3.20319))
sketch4.addConstraint(Sketcher.Constraint("DistanceY", 15, 1, 15, 2, 3.20319))
sketch4.addConstraint(Sketcher.Constraint("DistanceX", 12, 3, 21, 3, 0.9977))
sketch4.addConstraint(Sketcher.Constraint("Distance", 0, 14.56607))
sketch4.addConstraint(Sketcher.Constraint("Distance", 1, 0.98661))
sketch4.addConstraint(Sketcher.Constraint("Distance", 13, 14.298712))
sketch4.addConstraint(Sketcher.Constraint("Distance", 18, 14.726849))
sketch4.addConstraint(Sketcher.Constraint("DistanceY", -1, 1, 2, 3, 8.90819))
sketch4.addConstraint(Sketcher.Constraint("DistanceY", -1, 1, 6, 3, 9.380931))
sketch4.addConstraint(Sketcher.Constraint("DistanceY", -1, 1, 16, 3, 8.90819))
sketch4.addConstraint(Sketcher.Constraint("DistanceX", -1, 1, 23, 3, 46.597949))
sketch4.addConstraint(Sketcher.Constraint("DistanceY", -1, 1, 23, 3, 36.418239))
sketch4.addConstraint(Sketcher.Constraint("DistanceX", -1, 1, 25, 3, 46.599721))
sketch4.addConstraint(Sketcher.Constraint("DistanceY", -1, 1, 26, 3, 21.07441))
sketch4.addConstraint(Sketcher.Constraint("DistanceY", -1, 1, 0, 2, 11.073219))
sketch4.addConstraint(Sketcher.Constraint("DistanceY", -1, 1, 1, 2, 10.437279))
sketch4.addConstraint(Sketcher.Constraint("DistanceX", -1, 1, 5, 2, 47.600382))
sketch4.addConstraint(Sketcher.Constraint("DistanceY", -1, 1, 6, 2, 9.381249))
sketch4.addConstraint(Sketcher.Constraint("DistanceY", -1, 1, 16, 1, 10.437279))
sketch4.addConstraint(Sketcher.Constraint("DistanceX", 17, 2, -1, 1, 31.673319))
sketch4.addConstraint(Sketcher.Constraint("DistanceY", -1, 1, 20, 2, 36.410349))
sketch4.addConstraint(Sketcher.Constraint("DistanceX", -1, 1, 22, 2, 46.597652))
sketch4.addConstraint(Sketcher.Constraint("DistanceY", -1, 1, 25, 1, 11.080888))
sketch4.addConstraint(Sketcher.Constraint("DistanceX", 12, 3, 8, 3, 94.997722))
sketch4.addConstraint(Sketcher.Constraint("DistanceX", 12, 3, 19, 3, 0.999472))
sketch4.addConstraint(Sketcher.Constraint("DistanceY", 21, 3, 10, 3, 0.862529))
sketch4.addConstraint(Sketcher.Constraint("DistanceX", 26, 3, 23, 3, 0.357861))
sketch4.addConstraint(Sketcher.Constraint("DistanceX", 0, 2, 6, 3, 15.925229))
sketch4.addConstraint(Sketcher.Constraint("DistanceY", 4, 1, 1, 2, 4.957532))
sketch4.addConstraint(Sketcher.Constraint("DistanceX", 8, 2, 8, 3, 0.000318))
sketch4.addConstraint(Sketcher.Constraint("DistanceY", 10, 2, 10, 3, 0.000318))
sketch4.addConstraint(Sketcher.Constraint("DistanceX", 12, 3, 12, 2, 0.000318))
sketch4.addConstraint(Sketcher.Constraint("DistanceY", 13, 2, 19, 3, 9.23626))
sketch4.addConstraint(Sketcher.Constraint("DistanceY", 16, 1, 17, 2, 0.637218))
sketch4.addConstraint(Sketcher.Constraint("DistanceY", 12, 3, 18, 2, 1.70012))
sketch4.addConstraint(Sketcher.Constraint("DistanceY", 18, 2, 19, 1, 3.637011))
sketch4.addConstraint(Sketcher.Constraint("DistanceY", 23, 1, 22, 2, 3.637011))
sketch4.addConstraint(Sketcher.Constraint("DistanceY", 6, 3, 24, 2, 5.337562))
sketch4.setExpression("Constraints[29]", "Params.sketch4_radius")
sketch4.setExpression("Constraints[30]", "Params.sketch4_radius2")
sketch4.setExpression("Constraints[31]", "Params.sketch4_radius3")
sketch4.setExpression("Constraints[32]", "Params.sketch4_radius4")
sketch4.setExpression("Constraints[33]", "Params.sketch4_radius5")
pad4 = doc.addObject("PartDesign::Pad", "Pad003")
body.addObject(pad4)
pad4.Profile = sketch4
pad4.setExpression("Length", "Params.pad4_length")

# Sketch on XY plane
sketch5 = doc.addObject("Sketcher::SketchObject", "Sketch004")
body.addObject(sketch5)
sketch5.AttachmentSupport = (doc.XY_Plane, [""])
sketch5.MapMode = "FlatFace"
sketch5.AttachmentOffset = App.Placement(App.Vector(0, 0, 3.2), App.Rotation())
sketch5.addGeometry(Part.Circle(App.Vector(-28, 9.7, 0), App.Vector(0, 0, 1), 2), False)
sketch5.addGeometry(Part.Circle(App.Vector(28, 9.7, 0), App.Vector(0, 0, 1), 2), False)
sketch5.addGeometry(Part.Circle(App.Vector(-31.2, 6.9, 0), App.Vector(0, 0, 1), 2), False)
sketch5.addGeometry(Part.Circle(App.Vector(31.2, 6.9, 0), App.Vector(0, 0, 1), 2), False)
sketch5.addConstraint(Sketcher.Constraint("Equal", 0, 1))
sketch5.addConstraint(Sketcher.Constraint("Equal", 1, 2))
sketch5.addConstraint(Sketcher.Constraint("Equal", 2, 3))
sketch5.addConstraint(Sketcher.Constraint("Symmetric", 0, 3, 1, 3, -2))
sketch5.addConstraint(Sketcher.Constraint("Symmetric", 2, 3, 3, 3, -2))
sketch5.addConstraint(Sketcher.Constraint("Diameter", 0, 4.0))
sketch5.addConstraint(Sketcher.Constraint("DistanceX", 2, 3, -1, 1, 31.24))
sketch5.addConstraint(Sketcher.Constraint("DistanceY", -1, 1, 2, 3, 6.905))
sketch5.addConstraint(Sketcher.Constraint("DistanceX", 0, 3, 1, 3, 55.9049))
sketch5.addConstraint(Sketcher.Constraint("DistanceY", -1, 1, 0, 3, 9.676663))
sketch5.setExpression("Constraints[5]", "Params.sketch5_diameter")
pocket1 = doc.addObject("PartDesign::Pocket", "Pocket")
body.addObject(pocket1)
pocket1.Profile = sketch5
pocket1.setExpression("Length", "Params.pocket1_length")
doc.recompute()

fillet = doc.addObject("PartDesign::Fillet", "Fillet")
body.addObject(fillet)
fillet.Base = (pocket1, edges_at(pocket1, [
    (-27.328, 11.577, 2.2),
    (-28.577, 11.577, 2.2),
    (28.577, 11.577, 2.2),
    (27.328, 11.577, 2.2),
]))
fillet.setExpression("Radius", "Params.fillet_radius")

doc.recompute()
